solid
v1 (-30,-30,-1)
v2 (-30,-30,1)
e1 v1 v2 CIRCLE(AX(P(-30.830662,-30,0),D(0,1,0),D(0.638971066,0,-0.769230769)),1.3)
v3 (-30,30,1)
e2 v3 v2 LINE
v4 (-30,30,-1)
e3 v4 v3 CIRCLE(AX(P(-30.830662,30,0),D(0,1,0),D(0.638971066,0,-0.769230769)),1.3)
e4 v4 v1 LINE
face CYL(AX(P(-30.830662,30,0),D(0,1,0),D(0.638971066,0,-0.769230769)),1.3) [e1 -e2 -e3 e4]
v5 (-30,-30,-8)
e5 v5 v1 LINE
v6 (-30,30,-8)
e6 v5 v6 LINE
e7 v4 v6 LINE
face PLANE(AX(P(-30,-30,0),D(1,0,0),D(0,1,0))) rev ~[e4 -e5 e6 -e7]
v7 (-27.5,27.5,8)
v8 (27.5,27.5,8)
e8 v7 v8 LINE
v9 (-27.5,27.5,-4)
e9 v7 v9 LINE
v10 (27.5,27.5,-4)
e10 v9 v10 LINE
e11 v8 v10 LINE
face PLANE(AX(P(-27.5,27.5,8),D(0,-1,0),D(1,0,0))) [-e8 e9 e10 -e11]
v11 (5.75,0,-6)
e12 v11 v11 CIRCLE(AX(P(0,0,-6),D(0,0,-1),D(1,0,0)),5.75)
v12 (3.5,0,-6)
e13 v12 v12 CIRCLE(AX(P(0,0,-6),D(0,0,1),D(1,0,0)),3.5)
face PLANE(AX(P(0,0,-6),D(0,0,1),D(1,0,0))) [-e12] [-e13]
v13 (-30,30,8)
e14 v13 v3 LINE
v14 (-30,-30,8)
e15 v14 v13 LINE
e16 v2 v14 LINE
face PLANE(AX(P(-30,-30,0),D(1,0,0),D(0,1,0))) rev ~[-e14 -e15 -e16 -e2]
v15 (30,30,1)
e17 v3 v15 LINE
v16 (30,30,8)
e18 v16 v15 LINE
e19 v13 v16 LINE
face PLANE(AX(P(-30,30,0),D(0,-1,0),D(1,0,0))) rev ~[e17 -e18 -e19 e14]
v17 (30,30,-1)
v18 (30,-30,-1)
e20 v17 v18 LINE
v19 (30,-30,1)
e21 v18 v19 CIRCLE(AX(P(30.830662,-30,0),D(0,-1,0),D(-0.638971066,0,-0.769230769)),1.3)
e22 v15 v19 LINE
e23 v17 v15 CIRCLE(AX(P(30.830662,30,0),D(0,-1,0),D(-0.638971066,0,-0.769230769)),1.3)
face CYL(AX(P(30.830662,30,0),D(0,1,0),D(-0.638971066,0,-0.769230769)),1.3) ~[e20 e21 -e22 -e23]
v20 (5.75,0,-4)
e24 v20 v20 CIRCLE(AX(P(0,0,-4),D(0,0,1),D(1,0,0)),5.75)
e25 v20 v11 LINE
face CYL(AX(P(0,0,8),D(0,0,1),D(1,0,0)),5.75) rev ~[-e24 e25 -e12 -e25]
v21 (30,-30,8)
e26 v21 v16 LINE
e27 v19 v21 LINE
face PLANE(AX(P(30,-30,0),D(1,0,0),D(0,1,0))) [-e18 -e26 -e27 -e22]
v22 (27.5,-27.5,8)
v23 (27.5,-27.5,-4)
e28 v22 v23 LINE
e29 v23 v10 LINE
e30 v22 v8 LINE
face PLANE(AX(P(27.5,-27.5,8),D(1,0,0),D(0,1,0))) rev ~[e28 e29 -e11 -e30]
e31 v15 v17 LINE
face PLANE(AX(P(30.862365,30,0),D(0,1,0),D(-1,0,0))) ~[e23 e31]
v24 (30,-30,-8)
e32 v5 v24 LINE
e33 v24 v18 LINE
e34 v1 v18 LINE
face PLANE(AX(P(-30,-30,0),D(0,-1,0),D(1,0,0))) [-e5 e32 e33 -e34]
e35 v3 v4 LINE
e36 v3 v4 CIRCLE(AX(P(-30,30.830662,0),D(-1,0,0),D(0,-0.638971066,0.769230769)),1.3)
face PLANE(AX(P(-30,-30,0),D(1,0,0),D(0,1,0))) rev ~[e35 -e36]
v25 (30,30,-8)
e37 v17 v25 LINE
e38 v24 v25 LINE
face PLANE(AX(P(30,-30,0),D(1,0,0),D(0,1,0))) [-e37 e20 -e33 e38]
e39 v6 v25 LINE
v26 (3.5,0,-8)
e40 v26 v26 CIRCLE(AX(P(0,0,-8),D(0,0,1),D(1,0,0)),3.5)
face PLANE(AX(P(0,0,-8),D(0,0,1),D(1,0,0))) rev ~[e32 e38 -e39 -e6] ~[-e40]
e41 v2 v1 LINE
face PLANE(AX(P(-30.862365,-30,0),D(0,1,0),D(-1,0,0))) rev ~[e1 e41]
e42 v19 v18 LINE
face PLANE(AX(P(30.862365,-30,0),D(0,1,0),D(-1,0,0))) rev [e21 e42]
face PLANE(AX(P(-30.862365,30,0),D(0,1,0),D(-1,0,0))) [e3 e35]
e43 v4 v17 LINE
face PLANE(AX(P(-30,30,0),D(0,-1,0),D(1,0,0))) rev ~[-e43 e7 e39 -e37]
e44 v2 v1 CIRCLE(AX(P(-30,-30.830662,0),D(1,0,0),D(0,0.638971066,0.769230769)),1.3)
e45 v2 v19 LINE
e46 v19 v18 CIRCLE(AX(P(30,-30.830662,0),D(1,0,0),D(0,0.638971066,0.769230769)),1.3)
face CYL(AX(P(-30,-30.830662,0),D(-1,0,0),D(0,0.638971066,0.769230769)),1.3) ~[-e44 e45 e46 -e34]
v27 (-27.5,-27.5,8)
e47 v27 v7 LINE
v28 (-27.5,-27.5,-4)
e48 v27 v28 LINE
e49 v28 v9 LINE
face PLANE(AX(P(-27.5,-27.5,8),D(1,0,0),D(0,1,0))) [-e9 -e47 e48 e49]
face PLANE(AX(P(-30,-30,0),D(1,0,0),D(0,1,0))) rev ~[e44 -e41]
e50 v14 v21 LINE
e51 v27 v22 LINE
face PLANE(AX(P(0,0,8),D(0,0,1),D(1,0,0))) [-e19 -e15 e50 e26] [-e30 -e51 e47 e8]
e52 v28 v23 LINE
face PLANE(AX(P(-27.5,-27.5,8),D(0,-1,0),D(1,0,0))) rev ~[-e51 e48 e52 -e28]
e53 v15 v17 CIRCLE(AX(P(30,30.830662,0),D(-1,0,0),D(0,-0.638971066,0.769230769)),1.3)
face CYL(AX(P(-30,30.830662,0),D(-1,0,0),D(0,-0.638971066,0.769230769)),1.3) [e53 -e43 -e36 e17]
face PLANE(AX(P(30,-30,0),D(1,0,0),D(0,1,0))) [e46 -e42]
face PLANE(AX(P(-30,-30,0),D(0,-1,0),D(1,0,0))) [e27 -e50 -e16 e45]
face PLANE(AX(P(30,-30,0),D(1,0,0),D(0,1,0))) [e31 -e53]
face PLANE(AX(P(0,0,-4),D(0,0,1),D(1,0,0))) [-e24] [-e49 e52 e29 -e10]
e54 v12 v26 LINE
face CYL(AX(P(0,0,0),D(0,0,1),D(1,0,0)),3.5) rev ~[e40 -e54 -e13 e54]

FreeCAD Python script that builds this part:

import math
import FreeCAD as App
import Part
import Sketcher

V = App.Vector


def add_polygon(sketch, points):
    """Adds a closed chain of lines whose ends are joined by coincident constraints."""
    first, n = sketch.GeometryCount, len(points)
    for a, b in zip(points, points[1:] + points[:1]):
        sketch.addGeometry(Part.LineSegment(App.Vector(*a, 0), App.Vector(*b, 0)), False)
    for i in range(n):
        sketch.addConstraint(Sketcher.Constraint("Coincident", first + i, 2, first + (i + 1) % n, 1))

doc = App.newDocument("Part")
body = doc.addObject("PartDesign::Body", "Body")

# Sketch on XY plane
sketch1 = doc.addObject("Sketcher::SketchObject", "Sketch")
body.addObject(sketch1)
sketch1.AttachmentSupport = (doc.XY_Plane, [""])
sketch1.MapMode = "FlatFace"
add_polygon(sketch1, [(-30, 30), (-30, -30), (30, -30), (30, 30)])  # lines 0-3
sketch1.addGeometry(Part.Circle(V(0, 0, 0), V(0, 0, 1), 3.5), False)  # 4
sketch1.addConstraint(Sketcher.Constraint("Vertical", 0))
sketch1.addConstraint(Sketcher.Constraint("Horizontal", 1))
sketch1.addConstraint(Sketcher.Constraint("Vertical", 2))
sketch1.addConstraint(Sketcher.Constraint("Horizontal", 3))
sketch1.addConstraint(Sketcher.Constraint("Coincident", 4, 3, -1, 1))
sketch1.addConstraint(Sketcher.Constraint("Symmetric", 0, 2, 2, 2, -1, 1))
sketch1.addConstraint(Sketcher.Constraint("Equal", 3, 0))
sketch1.addConstraint(Sketcher.Constraint("Diameter", 4, 7.0))
sketch1.addConstraint(Sketcher.Constraint("DistanceX", 1, 1, 1, 2, 60.0))
pad1 = doc.addObject("PartDesign::Pad", "Pad")
body.addObject(pad1)
pad1.Profile = sketch1
pad1.Type = "TwoLengths"
pad1.Length = 8
pad1.Length2 = 8

# Sketch on XY plane
sketch2 = doc.addObject("Sketcher::SketchObject", "Sketch001")
body.addObject(sketch2)
sketch2.AttachmentSupport = (doc.XY_Plane, [""])
sketch2.MapMode = "FlatFace"
sketch2.AttachmentOffset = App.Placement(V(0, 0, 8), App.Rotation())
sketch2.addGeometry(Part.Circle(V(0, 0, 0), V(0, 0, 1), 6), False)
sketch2.addConstraint(Sketcher.Constraint("Coincident", 0, 3, -1, 1))
sketch2.addConstraint(Sketcher.Constraint("Diameter", 0, 11.5))
pocket1 = doc.addObject("PartDesign::Pocket", "Pocket")
body.addObject(pocket1)
pocket1.Profile = sketch2
pocket1.Length = 14

# Sketch on YZ plane
sketch3 = doc.addObject("Sketcher::SketchObject", "Sketch002")
body.addObject(sketch3)
sketch3.AttachmentSupport = (doc.YZ_Plane, [""])
sketch3.MapMode = "FlatFace"
sketch3.AttachmentOffset = App.Placement(V(0, 0, -30), App.Rotation())
sketch3.addGeometry(Part.ArcOfCircle(Part.Circle(V(30.8, 0, 0), V(0, 0, 1), 1.3), math.radians(-130), math.radians(130)), False)
sketch3.addGeometry(Part.LineSegment(V(30, -1, 0), V(30, 1, 0)), False)
sketch3.addConstraint(Sketcher.Constraint("Coincident", 0, 1, 1, 1))
sketch3.addConstraint(Sketcher.Constraint("Coincident", 1, 2, 0, 2))
sketch3.addConstraint(Sketcher.Constraint("Vertical", 1))
sketch3.addConstraint(Sketcher.Constraint("PointOnObject", 0, 3, -1))
sketch3.addConstraint(Sketcher.Constraint("Radius", 0, 1.3))
sketch3.addConstraint(Sketcher.Constraint("DistanceY", 1, 1, 1, 2, 2.0))
sketch3.addConstraint(Sketcher.Constraint("DistanceX", -1, 1, 0, 1, 30.0))
pad2 = doc.addObject("PartDesign::Pad", "Pad001")
body.addObject(pad2)
pad2.Profile = sketch3
pad2.Length = 60
body2 = doc.addObject("PartDesign::Body", "Body001")
doc.recompute()

body2.BaseFeature = body
doc.recompute()

mirroring = doc.addObject("Part::Mirroring", "Mirroring")
mirroring.Source = body
mirroring.Base = V(0, 0, 0)
mirroring.Normal = V(0, -1, 0)
body3 = doc.addObject("PartDesign::Body", "Body002")
body3.BaseFeature = mirroring
boolean = doc.addObject("PartDesign::Boolean", "Boolean")
body2.addObject(boolean)
boolean.Type = "Fuse"
boolean.addObjects([body3])
doc.recompute()

# Sketch on XZ plane
sketch4 = doc.addObject("Sketcher::SketchObject", "Sketch003")
body2.addObject(sketch4)
sketch4.AttachmentSupport = (doc.getObject("XZ_Plane001"), [""])
sketch4.MapMode = "FlatFace"
sketch4.AttachmentOffset = App.Placement(V(0, 0, -30), App.Rotation())
sketch4.addGeometry(Part.ArcOfCircle(Part.Circle(V(-30.8, 0, 0), V(0, 0, 1), 1.3), math.radians(50), math.radians(310)), False)
sketch4.addGeometry(Part.LineSegment(V(-30, 1, 0), V(-30, -1, 0)), False)
sketch4.addConstraint(Sketcher.Constraint("Coincident", 0, 1, 1, 1))
sketch4.addConstraint(Sketcher.Constraint("Coincident", 1, 2, 0, 2))
sketch4.addConstraint(Sketcher.Constraint("Vertical", 1))
sketch4.addConstraint(Sketcher.Constraint("PointOnObject", 0, 3, -1))
sketch4.addConstraint(Sketcher.Constraint("Radius", 0, 1.3))
sketch4.addConstraint(Sketcher.Constraint("DistanceY", 1, 2, 1, 1, 2.0))
sketch4.addConstraint(Sketcher.Constraint("DistanceX", 0, 1, -1, 1, 30.0))
pad3 = doc.addObject("PartDesign::Pad", "Pad002")
body2.addObject(pad3)
pad3.Profile = sketch4
pad3.Length = 60
body4 = doc.addObject("PartDesign::Body", "Body003")
doc.recompute()

body4.BaseFeature = body2
doc.recompute()

mirroring2 = doc.addObject("Part::Mirroring", "Mirroring001")
mirroring2.Source = body2
mirroring2.Base = V(0, 0, 0)
mirroring2.Normal = V(1, 0, 0)
body5 = doc.addObject("PartDesign::Body", "Body004")
body5.BaseFeature = mirroring2
boolean2 = doc.addObject("PartDesign::Boolean", "Boolean001")
body4.addObject(boolean2)
boolean2.Type = "Fuse"
boolean2.addObjects([body5])
doc.recompute()

# Sketch on XY plane
sketch5 = doc.addObject("Sketcher::SketchObject", "Sketch004")
body4.addObject(sketch5)
sketch5.AttachmentSupport = (doc.getObject("XY_Plane003"), [""])
sketch5.MapMode = "FlatFace"
sketch5.AttachmentOffset = App.Placement(V(0, 0, 8), App.Rotation())
add_polygon(sketch5, [(-28, 28), (-28, -28), (28, -28), (28, 28)])  # lines 0-3
sketch5.addConstraint(Sketcher.Constraint("Vertical", 0))
sketch5.addConstraint(Sketcher.Constraint("Horizontal", 1))
sketch5.addConstraint(Sketcher.Constraint("Vertical", 2))
sketch5.addConstraint(Sketcher.Constraint("Horizontal", 3))
sketch5.addConstraint(Sketcher.Constraint("Symmetric", 0, 2, 2, 2, -1, 1))
sketch5.addConstraint(Sketcher.Constraint("Equal", 3, 0))
sketch5.addConstraint(Sketcher.Constraint("DistanceX", 1, 1, 1, 2, 55.0))
pocket2 = doc.addObject("PartDesign::Pocket", "Pocket001")
body4.addObject(pocket2)
pocket2.Profile = sketch5
pocket2.Length = 12
mirroring.Visibility = False
mirroring2.Visibility = False

doc.recompute()
